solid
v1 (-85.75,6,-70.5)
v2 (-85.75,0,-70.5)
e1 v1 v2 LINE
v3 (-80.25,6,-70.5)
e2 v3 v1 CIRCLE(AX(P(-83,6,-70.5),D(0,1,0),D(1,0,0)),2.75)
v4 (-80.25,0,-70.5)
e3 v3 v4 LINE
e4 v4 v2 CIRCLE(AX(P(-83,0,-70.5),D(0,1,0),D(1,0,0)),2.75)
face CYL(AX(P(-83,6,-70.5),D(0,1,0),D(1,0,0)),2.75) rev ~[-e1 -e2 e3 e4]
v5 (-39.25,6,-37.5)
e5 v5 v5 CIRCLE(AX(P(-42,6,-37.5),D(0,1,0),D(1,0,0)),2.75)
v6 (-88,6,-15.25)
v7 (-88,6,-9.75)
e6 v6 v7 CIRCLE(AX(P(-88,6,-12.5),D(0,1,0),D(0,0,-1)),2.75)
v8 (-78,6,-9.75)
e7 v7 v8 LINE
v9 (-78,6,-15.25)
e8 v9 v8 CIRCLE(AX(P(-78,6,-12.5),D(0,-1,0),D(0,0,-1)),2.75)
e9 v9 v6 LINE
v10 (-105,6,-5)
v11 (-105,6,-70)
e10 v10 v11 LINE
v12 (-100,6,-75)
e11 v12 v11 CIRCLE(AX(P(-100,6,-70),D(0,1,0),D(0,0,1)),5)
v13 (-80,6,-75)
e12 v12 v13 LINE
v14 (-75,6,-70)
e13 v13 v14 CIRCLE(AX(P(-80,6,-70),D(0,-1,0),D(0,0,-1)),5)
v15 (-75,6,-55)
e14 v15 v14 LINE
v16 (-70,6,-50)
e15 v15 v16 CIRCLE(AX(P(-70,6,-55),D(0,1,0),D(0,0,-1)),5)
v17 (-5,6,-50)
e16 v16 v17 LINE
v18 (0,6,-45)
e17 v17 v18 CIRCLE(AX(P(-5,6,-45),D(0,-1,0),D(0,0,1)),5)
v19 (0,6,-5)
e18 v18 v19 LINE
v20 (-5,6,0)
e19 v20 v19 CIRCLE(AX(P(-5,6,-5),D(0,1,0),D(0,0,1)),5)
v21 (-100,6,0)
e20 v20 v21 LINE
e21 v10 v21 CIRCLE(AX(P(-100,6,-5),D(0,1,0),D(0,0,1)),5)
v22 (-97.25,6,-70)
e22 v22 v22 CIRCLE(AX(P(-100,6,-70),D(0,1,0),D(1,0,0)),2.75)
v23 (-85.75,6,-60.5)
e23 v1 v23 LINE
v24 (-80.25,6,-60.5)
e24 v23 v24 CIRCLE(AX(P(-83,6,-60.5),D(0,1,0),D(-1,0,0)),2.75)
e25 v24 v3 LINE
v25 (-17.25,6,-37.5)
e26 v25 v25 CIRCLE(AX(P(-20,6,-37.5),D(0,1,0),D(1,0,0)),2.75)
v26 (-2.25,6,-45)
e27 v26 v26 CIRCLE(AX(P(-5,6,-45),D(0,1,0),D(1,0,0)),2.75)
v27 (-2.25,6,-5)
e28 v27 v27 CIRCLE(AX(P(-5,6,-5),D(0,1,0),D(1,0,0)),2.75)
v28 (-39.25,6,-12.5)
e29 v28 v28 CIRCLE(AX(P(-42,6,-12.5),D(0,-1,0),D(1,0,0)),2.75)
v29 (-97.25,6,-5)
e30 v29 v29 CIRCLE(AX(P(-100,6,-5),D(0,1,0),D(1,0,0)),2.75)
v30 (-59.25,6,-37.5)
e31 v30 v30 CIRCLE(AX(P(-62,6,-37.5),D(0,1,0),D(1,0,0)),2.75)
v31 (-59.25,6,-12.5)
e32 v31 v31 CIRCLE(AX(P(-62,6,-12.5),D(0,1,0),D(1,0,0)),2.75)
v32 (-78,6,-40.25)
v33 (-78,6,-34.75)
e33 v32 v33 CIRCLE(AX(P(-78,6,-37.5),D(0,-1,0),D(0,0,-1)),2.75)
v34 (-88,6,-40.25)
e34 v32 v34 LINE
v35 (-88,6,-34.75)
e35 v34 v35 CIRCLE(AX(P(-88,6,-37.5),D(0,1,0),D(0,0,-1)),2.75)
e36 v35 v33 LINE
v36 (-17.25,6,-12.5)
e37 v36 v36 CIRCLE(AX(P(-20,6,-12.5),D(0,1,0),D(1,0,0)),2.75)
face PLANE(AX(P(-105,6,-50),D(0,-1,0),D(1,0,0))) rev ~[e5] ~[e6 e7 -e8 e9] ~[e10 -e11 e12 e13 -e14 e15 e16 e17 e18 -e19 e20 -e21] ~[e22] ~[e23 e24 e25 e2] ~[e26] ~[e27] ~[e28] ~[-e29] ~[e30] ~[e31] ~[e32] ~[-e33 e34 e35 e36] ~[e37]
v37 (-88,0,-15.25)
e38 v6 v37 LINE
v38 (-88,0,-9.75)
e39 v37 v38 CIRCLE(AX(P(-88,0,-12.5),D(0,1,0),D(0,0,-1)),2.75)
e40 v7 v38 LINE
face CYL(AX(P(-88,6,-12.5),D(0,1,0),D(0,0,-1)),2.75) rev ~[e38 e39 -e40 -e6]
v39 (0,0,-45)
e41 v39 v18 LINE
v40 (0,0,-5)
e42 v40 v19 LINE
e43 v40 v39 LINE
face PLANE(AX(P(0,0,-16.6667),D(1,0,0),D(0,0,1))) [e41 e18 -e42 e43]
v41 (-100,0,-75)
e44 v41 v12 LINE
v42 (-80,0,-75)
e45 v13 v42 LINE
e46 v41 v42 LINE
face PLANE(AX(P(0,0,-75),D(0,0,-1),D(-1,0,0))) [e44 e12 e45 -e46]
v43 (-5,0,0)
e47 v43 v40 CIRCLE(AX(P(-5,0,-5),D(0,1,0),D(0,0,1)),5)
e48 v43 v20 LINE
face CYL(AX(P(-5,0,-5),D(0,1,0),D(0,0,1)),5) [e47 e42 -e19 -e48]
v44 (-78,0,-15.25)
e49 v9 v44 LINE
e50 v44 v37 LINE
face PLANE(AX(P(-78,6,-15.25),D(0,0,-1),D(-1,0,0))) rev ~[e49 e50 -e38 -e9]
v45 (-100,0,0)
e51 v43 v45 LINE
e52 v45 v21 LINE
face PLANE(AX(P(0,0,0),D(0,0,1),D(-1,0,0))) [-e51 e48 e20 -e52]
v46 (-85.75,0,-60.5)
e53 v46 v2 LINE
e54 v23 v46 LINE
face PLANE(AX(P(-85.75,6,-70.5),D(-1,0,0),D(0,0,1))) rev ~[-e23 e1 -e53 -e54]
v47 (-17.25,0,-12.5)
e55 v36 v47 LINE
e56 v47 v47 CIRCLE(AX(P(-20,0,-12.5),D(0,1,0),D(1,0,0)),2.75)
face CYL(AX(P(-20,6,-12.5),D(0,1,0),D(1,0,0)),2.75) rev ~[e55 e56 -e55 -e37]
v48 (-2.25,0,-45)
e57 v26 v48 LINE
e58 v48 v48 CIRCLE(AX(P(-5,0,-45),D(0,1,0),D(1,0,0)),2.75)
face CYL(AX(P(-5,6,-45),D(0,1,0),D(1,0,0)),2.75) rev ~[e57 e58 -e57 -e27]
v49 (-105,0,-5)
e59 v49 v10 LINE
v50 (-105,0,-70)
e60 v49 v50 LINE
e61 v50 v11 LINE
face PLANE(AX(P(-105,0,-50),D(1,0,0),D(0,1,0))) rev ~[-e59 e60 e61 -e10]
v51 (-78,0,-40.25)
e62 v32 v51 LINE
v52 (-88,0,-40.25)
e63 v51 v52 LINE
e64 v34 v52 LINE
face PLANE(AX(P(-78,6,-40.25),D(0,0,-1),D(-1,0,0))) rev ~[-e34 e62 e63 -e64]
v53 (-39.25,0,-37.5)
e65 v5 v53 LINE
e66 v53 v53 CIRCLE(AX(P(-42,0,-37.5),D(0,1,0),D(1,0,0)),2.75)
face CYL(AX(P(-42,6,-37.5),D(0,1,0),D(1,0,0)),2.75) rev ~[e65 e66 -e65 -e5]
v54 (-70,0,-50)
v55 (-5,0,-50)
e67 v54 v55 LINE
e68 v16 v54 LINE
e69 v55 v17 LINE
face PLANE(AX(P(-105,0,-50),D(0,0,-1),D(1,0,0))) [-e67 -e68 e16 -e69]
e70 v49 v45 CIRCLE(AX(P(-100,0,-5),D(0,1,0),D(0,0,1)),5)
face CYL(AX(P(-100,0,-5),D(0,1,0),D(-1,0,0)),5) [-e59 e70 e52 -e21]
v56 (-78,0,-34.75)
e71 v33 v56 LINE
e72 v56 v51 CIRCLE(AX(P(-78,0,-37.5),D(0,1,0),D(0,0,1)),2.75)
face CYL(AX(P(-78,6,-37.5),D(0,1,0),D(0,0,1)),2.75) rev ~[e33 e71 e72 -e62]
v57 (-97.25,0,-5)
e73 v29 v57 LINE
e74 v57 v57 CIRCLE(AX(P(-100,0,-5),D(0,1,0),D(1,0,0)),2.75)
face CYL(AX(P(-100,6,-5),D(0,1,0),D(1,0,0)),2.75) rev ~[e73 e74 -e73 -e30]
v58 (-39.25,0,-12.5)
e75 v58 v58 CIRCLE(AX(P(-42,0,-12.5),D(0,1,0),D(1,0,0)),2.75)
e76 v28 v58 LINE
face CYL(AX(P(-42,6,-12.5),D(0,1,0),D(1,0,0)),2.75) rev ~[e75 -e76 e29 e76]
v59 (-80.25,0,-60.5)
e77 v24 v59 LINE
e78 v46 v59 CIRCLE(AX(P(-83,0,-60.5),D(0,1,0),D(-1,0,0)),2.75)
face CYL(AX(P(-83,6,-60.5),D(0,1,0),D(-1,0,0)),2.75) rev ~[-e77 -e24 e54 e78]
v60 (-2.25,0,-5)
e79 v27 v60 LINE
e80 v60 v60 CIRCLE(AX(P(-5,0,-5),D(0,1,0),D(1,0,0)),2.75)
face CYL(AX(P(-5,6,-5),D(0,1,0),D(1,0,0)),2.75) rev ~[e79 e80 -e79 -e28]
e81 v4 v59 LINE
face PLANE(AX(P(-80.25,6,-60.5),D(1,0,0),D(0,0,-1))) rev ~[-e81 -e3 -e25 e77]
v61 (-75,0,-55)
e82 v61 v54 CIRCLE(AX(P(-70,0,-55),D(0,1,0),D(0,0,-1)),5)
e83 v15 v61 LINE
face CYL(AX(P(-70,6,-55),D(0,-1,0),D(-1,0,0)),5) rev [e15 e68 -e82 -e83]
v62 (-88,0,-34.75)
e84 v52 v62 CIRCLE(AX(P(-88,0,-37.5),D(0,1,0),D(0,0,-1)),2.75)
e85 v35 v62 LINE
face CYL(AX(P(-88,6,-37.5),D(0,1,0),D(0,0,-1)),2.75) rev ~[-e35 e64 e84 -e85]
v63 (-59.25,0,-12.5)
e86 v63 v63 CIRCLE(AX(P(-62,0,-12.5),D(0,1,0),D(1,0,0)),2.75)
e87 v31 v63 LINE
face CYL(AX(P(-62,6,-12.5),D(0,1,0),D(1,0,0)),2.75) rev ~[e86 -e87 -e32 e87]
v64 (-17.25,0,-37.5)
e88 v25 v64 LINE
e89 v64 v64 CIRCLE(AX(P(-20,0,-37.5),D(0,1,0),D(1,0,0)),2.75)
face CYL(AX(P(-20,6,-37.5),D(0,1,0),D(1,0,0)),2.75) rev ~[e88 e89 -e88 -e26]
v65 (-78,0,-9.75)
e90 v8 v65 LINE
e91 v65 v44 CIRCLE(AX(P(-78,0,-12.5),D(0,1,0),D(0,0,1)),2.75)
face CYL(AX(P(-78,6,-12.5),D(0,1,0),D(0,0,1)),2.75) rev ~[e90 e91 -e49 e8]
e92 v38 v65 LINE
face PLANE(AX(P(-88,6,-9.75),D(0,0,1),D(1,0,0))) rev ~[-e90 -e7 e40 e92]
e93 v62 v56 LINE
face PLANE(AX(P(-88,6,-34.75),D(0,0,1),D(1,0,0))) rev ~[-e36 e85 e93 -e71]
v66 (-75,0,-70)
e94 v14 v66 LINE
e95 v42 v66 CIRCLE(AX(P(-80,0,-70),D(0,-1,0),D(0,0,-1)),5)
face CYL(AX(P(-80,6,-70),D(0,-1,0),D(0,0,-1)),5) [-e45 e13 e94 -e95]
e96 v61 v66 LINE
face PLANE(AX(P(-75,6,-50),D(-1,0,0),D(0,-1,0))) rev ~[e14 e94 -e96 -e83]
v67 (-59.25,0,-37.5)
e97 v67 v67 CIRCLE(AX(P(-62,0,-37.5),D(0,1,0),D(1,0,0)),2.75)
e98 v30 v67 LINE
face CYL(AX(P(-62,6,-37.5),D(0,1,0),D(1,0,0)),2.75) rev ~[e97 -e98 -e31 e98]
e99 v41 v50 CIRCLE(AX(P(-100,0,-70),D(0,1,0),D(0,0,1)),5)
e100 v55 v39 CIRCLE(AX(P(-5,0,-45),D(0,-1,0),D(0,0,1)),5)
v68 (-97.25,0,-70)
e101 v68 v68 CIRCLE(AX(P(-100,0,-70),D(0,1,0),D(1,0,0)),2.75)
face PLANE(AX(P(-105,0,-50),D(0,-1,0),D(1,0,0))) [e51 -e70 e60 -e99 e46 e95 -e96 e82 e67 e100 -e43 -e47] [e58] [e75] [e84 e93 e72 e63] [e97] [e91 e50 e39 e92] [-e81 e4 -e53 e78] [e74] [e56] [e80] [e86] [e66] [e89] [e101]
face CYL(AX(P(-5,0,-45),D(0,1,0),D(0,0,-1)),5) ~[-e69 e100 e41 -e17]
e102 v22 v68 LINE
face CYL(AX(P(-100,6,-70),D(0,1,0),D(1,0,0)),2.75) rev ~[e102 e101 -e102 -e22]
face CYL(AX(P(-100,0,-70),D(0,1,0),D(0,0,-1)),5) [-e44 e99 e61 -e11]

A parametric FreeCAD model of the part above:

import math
import FreeCAD as App
import Part
import Sketcher

V = App.Vector
Q = App.Units.Quantity


def edges_at(feature, points):
    """Names of the edges that pass closest to the given points."""
    edges = feature.Shape.Edges
    near = lambda p: min(range(len(edges)), key=lambda i: edges[i].distToShape(Part.Vertex(*p))[0])
    return sorted({f"Edge{near(p) + 1}" for p in points})


def add_polygon(sketch, points):
    """Adds a closed chain of lines whose ends are joined by coincident constraints."""
    first, n = sketch.GeometryCount, len(points)
    for a, b in zip(points, points[1:] + points[:1]):
        sketch.addGeometry(Part.LineSegment(App.Vector(*a, 0), App.Vector(*b, 0)), False)
    for i in range(n):
        sketch.addConstraint(Sketcher.Constraint("Coincident", first + i, 2, first + (i + 1) % n, 1))

doc = App.newDocument("Part")
body = doc.addObject("PartDesign::Body", "Body")

# Sketch on XZ plane
sketch1 = body.newObject("Sketcher::SketchObject", "Sketch")
sketch1.AttachmentSupport = (doc.getObject("XZ_Plane"), [""])
sketch1.MapMode = "FlatFace"
add_polygon(sketch1, [(-105, 0), (0, 0), (0, -50), (-105, -50)])  # lines 0-3
sketch1.addConstraint(Sketcher.Constraint("Horizontal", 0))
sketch1.addConstraint(Sketcher.Constraint("Vertical", 1))
sketch1.addConstraint(Sketcher.Constraint("Horizontal", 2))
sketch1.addConstraint(Sketcher.Constraint("Vertical", 3))
sketch1.addConstraint(Sketcher.Constraint("Coincident", 0, 2, -1, 1))
sketch1.addConstraint(Sketcher.Constraint("DistanceX", 0, 1, 0, 2, Q("105 mm")))
sketch1.addConstraint(Sketcher.Constraint("DistanceY", 1, 2, 1, 1, Q("50 mm")))
pad1 = body.newObject("PartDesign::Pad", "Pad")
pad1.Profile = sketch1
pad1.Length = 6
pad1.Reversed = True

# Sketch on XZ plane
sketch2 = body.newObject("Sketcher::SketchObject", "Sketch001")
sketch2.AttachmentSupport = (doc.getObject("XZ_Plane"), [""])
sketch2.MapMode = "FlatFace"
sketch2.AttachmentOffset = App.Placement(V(0, 0, -6), App.Rotation())
sketch2.addGeometry(Part.Circle(V(-20, -12.5, 0), V(0, 0, 1), 2.75), False)
sketch2.addGeometry(Part.Circle(V(-20, -37.5, 0), V(0, 0, 1), 2.75), False)
sketch2.addConstraint(Sketcher.Constraint("Equal", 0, 1))
sketch2.addConstraint(Sketcher.Constraint("Vertical", 0, 3, 1, 3))
sketch2.addConstraint(Sketcher.Constraint("Diameter", 0, Q("5.5 mm")))
sketch2.addConstraint(Sketcher.Constraint("DistanceX", 0, 3, -1, 1, Q("20 mm")))
sketch2.addConstraint(Sketcher.Constraint("DistanceY", 1, 3, 0, 3, Q("25 mm")))
sketch2.addConstraint(Sketcher.Constraint("DistanceY", 0, 3, -1, 1, Q("12.5 mm")))
pocket1 = body.newObject("PartDesign::Pocket", "Pocket")
pocket1.Profile = sketch2
pocket1.Type = "ThroughAll"
pocket1.Reversed = True

# Sketch on XZ plane
sketch3 = body.newObject("Sketcher::SketchObject", "Sketch002")
sketch3.AttachmentSupport = (doc.getObject("XZ_Plane"), [""])
sketch3.MapMode = "FlatFace"
sketch3.AttachmentOffset = App.Placement(V(0, 0, -6), App.Rotation())
sketch3.addGeometry(Part.ArcOfCircle(Part.Circle(V(-78, -12.5, 0), V(0, 0, 1), 2.75), math.radians(-90), math.radians(90)), False)
sketch3.addGeometry(Part.LineSegment(V(-78, -15.25, 0), V(-88, -15.25, 0)), False)
sketch3.addGeometry(Part.ArcOfCircle(Part.Circle(V(-88, -12.5, 0), V(0, 0, 1), 2.75), math.radians(90), math.radians(270)), False)
sketch3.addGeometry(Part.LineSegment(V(-88, -9.75, 0), V(-78, -9.75, 0)), False)
sketch3.addConstraint(Sketcher.Constraint("Tangent", 0, 1, 1, 1))
sketch3.addConstraint(Sketcher.Constraint("Tangent", 1, 2, 2, 2))
sketch3.addConstraint(Sketcher.Constraint("Tangent", 2, 1, 3, 1))
sketch3.addConstraint(Sketcher.Constraint("Tangent", 3, 2, 0, 2))
sketch3.addConstraint(Sketcher.Constraint("Horizontal", 1))
sketch3.addConstraint(Sketcher.Constraint("Horizontal", 3))
sketch3.addConstraint(Sketcher.Constraint("DistanceX", 1, 2, 1, 1, Q("10 mm")))
sketch3.addConstraint(Sketcher.Constraint("Radius", 0, Q("2.75 mm")))
sketch3.addConstraint(Sketcher.Constraint("DistanceX", 0, 3, -1, 1, Q("78 mm")))
sketch3.addConstraint(Sketcher.Constraint("DistanceY", 0, 3, -1, 1, Q("12.5 mm")))
pocket2 = body.newObject("PartDesign::Pocket", "Pocket001")
pocket2.Profile = sketch3
pocket2.Type = "ThroughAll"
pocket2.Reversed = True
doc.recompute()

linearpattern = body.newObject("PartDesign::LinearPattern", "LinearPattern")
linearpattern.Originals = [pocket2]
linearpattern.Direction = (doc.getObject("Z_Axis"), [""])
linearpattern.Mode = "offset"
linearpattern.Offset = 25
linearpattern.Occurrences = 2
linearpattern.Reversed = True
body.Tip = linearpattern

# Sketch on XY plane
sketch4 = body.newObject("Sketcher::SketchObject", "Sketch003")
sketch4.AttachmentSupport = (doc.getObject("XY_Plane"), [""])
sketch4.MapMode = "FlatFace"
sketch4.AttachmentOffset = App.Placement(V(0, 0, -50), App.Rotation())
add_polygon(sketch4, [(-75, 0), (-105, 0), (-105, 6), (-75, 6)])  # lines 0-3
sketch4.addConstraint(Sketcher.Constraint("Horizontal", 0))
sketch4.addConstraint(Sketcher.Constraint("Vertical", 1))
sketch4.addConstraint(Sketcher.Constraint("Horizontal", 2))
sketch4.addConstraint(Sketcher.Constraint("Vertical", 3))
sketch4.addConstraint(Sketcher.Constraint("PointOnObject", 0, 2, -1))
sketch4.addConstraint(Sketcher.Constraint("DistanceX", 0, 2, 0, 1, Q("30 mm")))
sketch4.addConstraint(Sketcher.Constraint("DistanceY", 1, 1, 1, 2, Q("6 mm")))
sketch4.addConstraint(Sketcher.Constraint("DistanceX", 0, 2, -1, 1, Q("105 mm")))
pad2 = body.newObject("PartDesign::Pad", "Pad001")
pad2.Profile = sketch4
pad2.Length = 25
pad2.Reversed = True

# Sketch on XZ plane
sketch5 = body.newObject("Sketcher::SketchObject", "Sketch004")
sketch5.AttachmentSupport = (doc.getObject("XZ_Plane"), [""])
sketch5.MapMode = "FlatFace"
sketch5.AttachmentOffset = App.Placement(V(0, 0, -6), App.Rotation())
sketch5.addGeometry(Part.ArcOfCircle(Part.Circle(V(-83, -60.5, 0), V(0, 0, 1), 2.75), math.radians(0), math.radians(180)), False)
sketch5.addGeometry(Part.LineSegment(V(-80.25, -60.5, 0), V(-80.25, -70.5, 0)), False)
sketch5.addGeometry(Part.ArcOfCircle(Part.Circle(V(-83, -70.5, 0), V(0, 0, 1), 2.75), math.radians(180), math.radians(360)), False)
sketch5.addGeometry(Part.LineSegment(V(-85.75, -70.5, 0), V(-85.75, -60.5, 0)), False)
sketch5.addConstraint(Sketcher.Constraint("Tangent", 0, 1, 1, 1))
sketch5.addConstraint(Sketcher.Constraint("Tangent", 1, 2, 2, 2))
sketch5.addConstraint(Sketcher.Constraint("Tangent", 2, 1, 3, 1))
sketch5.addConstraint(Sketcher.Constraint("Tangent", 3, 2, 0, 2))
sketch5.addConstraint(Sketcher.Constraint("Vertical", 1))
sketch5.addConstraint(Sketcher.Constraint("Vertical", 3))
sketch5.addConstraint(Sketcher.Constraint("DistanceY", 1, 2, 1, 1, Q("10 mm")))
sketch5.addConstraint(Sketcher.Constraint("Radius", 0, Q("2.75 mm")))
sketch5.addConstraint(Sketcher.Constraint("DistanceX", 0, 3, -1, 1, Q("83 mm")))
sketch5.addConstraint(Sketcher.Constraint("DistanceY", 0, 3, -1, 1, Q("60.5 mm")))
pocket3 = body.newObject("PartDesign::Pocket", "Pocket002")
pocket3.Profile = sketch5
pocket3.Type = "ThroughAll"
pocket3.Reversed = True
doc.recompute()

fillet = body.newObject("PartDesign::Fillet", "Fillet")
fillet.Base = (pocket3, edges_at(pocket3, [
    (-105, 3, 0),
    (0, 3, 0),
    (-75, 3, -75),
    (-105, 3, -75),
    (0, 3, -50),
    (-75, 3, -50),
]))
fillet.Radius = 5

# Sketch on XZ plane
sketch6 = body.newObject("Sketcher::SketchObject", "Sketch005")
sketch6.AttachmentSupport = (doc.getObject("XZ_Plane"), [""])
sketch6.MapMode = "FlatFace"
sketch6.AttachmentOffset = App.Placement(V(0, 0, -6), App.Rotation())
sketch6.addGeometry(Part.Circle(V(-62, -12.5, 0), V(0, 0, 1), 2.75), False)
sketch6.addGeometry(Part.Circle(V(-42, -12.5, 0), V(0, 0, 1), 2.75), False)
sketch6.addGeometry(Part.Circle(V(-42, -37.5, 0), V(0, 0, 1), 2.75), False)
sketch6.addGeometry(Part.Circle(V(-62, -37.5, 0), V(0, 0, 1), 2.75), False)
sketch6.addConstraint(Sketcher.Constraint("Equal", 0, 1))
sketch6.addConstraint(Sketcher.Constraint("Equal", 1, 2))
sketch6.addConstraint(Sketcher.Constraint("Equal", 2, 3))
sketch6.addConstraint(Sketcher.Constraint("Horizontal", 0, 3, 1, 3))
sketch6.addConstraint(Sketcher.Constraint("Horizontal", 2, 3, 3, 3))
sketch6.addConstraint(Sketcher.Constraint("Vertical", 1, 3, 2, 3))
sketch6.addConstraint(Sketcher.Constraint("Vertical", 0, 3, 3, 3))
sketch6.addConstraint(Sketcher.Constraint("Diameter", 0, Q("5.5 mm")))
sketch6.addConstraint(Sketcher.Constraint("DistanceX", 0, 3, 1, 3, Q("20 mm")))
sketch6.addConstraint(Sketcher.Constraint("DistanceY", 2, 3, 1, 3, Q("25 mm")))
sketch6.addConstraint(Sketcher.Constraint("DistanceX", 0, 3, -1, 1, Q("62 mm")))
sketch6.addConstraint(Sketcher.Constraint("DistanceY", 0, 3, -1, 1, Q("12.5 mm")))
pocket4 = body.newObject("PartDesign::Pocket", "Pocket003")
pocket4.Profile = sketch6
pocket4.Type = "ThroughAll"
pocket4.Reversed = True

# Sketch on XZ plane
sketch7 = body.newObject("Sketcher::SketchObject", "Sketch006")
sketch7.AttachmentSupport = (doc.getObject("XZ_Plane"), [""])
sketch7.MapMode = "FlatFace"
sketch7.AttachmentOffset = App.Placement(V(0, 0, -6), App.Rotation())
sketch7.addGeometry(Part.Circle(V(-100, -70, 0), V(0, 0, 1), 2.75), False)
sketch7.addGeometry(Part.Circle(V(-100, -5, 0), V(0, 0, 1), 2.75), False)
sketch7.addGeometry(Part.Circle(V(-5, -45, 0), V(0, 0, 1), 2.75), False)
sketch7.addGeometry(Part.Circle(V(-5, -5, 0), V(0, 0, 1), 2.75), False)
sketch7.addConstraint(Sketcher.Constraint("Equal", 0, 1))
sketch7.addConstraint(Sketcher.Constraint("Equal", 1, 2))
sketch7.addConstraint(Sketcher.Constraint("Equal", 2, 3))
sketch7.addConstraint(Sketcher.Constraint("Horizontal", 1, 3, 3, 3))
sketch7.addConstraint(Sketcher.Constraint("Vertical", 0, 3, 1, 3))
sketch7.addConstraint(Sketcher.Constraint("Vertical", 2, 3, 3, 3))
sketch7.addConstraint(Sketcher.Constraint("Diameter", 0, Q("5.5 mm")))
sketch7.addConstraint(Sketcher.Constraint("DistanceY", 1, 3, -1, 1, Q("5 mm")))
sketch7.addConstraint(Sketcher.Constraint("DistanceX", 2, 3, -1, 1, Q("5 mm")))
sketch7.addConstraint(Sketcher.Constraint("DistanceX", 0, 3, -1, 1, Q("100 mm")))
sketch7.addConstraint(Sketcher.Constraint("DistanceY", 0, 3, -1, 1, Q("70 mm")))
sketch7.addConstraint(Sketcher.Constraint("DistanceY", 2, 3, -1, 1, Q("45 mm")))
pocket5 = body.newObject("PartDesign::Pocket", "Pocket004")
pocket5.Profile = sketch7
pocket5.Type = "ThroughAll"
pocket5.Reversed = True

doc.recompute()
